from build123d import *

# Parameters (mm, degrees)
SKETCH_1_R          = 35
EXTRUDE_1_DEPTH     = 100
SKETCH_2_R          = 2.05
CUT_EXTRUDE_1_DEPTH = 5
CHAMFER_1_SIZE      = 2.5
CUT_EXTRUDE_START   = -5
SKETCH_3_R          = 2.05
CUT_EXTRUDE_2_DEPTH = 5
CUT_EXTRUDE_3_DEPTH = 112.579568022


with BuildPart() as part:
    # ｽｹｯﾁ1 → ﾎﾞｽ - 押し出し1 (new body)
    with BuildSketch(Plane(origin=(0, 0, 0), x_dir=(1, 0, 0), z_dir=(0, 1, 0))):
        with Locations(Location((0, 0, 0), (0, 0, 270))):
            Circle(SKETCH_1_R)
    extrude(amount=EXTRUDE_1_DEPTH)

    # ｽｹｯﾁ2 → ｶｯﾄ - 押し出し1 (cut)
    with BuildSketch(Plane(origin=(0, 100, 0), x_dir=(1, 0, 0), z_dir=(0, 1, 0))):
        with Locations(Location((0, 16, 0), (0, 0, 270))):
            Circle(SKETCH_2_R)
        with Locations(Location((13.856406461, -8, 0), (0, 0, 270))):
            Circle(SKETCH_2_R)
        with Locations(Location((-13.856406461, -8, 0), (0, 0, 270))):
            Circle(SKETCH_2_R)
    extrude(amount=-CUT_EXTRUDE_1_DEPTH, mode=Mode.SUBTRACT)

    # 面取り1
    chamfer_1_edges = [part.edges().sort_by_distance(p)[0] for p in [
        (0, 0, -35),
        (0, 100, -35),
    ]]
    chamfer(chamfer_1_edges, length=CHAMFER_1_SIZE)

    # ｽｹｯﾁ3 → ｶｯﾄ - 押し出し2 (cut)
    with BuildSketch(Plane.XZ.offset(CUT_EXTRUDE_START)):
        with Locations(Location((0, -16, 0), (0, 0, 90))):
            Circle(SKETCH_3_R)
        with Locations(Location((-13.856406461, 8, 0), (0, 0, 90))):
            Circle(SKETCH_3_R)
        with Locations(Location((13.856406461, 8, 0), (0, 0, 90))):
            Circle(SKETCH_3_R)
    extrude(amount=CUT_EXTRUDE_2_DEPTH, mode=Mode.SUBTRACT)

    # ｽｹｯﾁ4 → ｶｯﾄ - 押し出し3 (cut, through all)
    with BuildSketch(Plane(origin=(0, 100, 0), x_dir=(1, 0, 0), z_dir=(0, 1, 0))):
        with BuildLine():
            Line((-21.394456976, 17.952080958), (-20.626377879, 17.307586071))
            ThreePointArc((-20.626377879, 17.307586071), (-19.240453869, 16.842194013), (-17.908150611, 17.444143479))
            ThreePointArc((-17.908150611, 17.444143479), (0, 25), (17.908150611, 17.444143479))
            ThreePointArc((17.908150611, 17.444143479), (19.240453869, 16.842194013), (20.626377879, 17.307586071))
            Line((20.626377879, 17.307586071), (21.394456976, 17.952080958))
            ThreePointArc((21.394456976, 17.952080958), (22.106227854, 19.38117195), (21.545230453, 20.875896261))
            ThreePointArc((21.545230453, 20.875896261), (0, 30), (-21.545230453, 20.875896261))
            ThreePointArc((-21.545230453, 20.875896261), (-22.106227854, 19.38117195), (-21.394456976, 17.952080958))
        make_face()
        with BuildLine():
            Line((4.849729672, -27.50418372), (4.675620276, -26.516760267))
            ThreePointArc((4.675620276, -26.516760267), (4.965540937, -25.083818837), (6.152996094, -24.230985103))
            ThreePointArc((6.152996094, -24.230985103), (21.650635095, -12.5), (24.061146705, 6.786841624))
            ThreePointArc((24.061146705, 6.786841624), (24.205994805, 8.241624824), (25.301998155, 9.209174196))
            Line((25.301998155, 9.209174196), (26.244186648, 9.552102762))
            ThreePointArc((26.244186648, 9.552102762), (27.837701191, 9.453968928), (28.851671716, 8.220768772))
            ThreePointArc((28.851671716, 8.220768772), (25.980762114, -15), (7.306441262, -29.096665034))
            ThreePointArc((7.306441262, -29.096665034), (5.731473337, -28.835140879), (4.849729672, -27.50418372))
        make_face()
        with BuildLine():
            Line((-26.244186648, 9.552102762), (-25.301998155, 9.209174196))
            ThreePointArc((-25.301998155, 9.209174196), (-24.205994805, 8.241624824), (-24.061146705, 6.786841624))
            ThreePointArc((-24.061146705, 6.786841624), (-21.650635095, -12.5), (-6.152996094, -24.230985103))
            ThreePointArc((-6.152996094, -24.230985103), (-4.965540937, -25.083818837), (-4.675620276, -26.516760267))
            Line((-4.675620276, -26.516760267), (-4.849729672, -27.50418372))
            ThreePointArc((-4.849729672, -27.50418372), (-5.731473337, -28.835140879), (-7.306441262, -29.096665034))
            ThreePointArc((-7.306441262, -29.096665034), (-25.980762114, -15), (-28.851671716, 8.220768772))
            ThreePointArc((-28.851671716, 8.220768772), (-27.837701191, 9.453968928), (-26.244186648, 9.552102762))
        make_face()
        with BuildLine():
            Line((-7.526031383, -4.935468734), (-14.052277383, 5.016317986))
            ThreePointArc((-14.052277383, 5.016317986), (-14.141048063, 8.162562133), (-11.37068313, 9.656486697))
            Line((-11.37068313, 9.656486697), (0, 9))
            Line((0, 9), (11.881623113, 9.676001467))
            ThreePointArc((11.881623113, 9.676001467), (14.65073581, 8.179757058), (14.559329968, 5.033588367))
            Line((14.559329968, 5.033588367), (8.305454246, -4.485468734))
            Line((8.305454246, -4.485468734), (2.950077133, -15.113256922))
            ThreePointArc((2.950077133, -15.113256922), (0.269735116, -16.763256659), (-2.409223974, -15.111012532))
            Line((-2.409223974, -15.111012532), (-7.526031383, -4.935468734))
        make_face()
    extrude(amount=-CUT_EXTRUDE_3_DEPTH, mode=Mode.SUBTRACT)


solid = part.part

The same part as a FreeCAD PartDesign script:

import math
import FreeCAD as App
import Part
import Sketcher

V = App.Vector
Q = App.Units.Quantity


def edges_at(feature, points):
    """Names of the edges that pass closest to the given points."""
    edges = feature.Shape.Edges
    near = lambda p: min(range(len(edges)), key=lambda i: edges[i].distToShape(Part.Vertex(*p))[0])
    return sorted({f"Edge{near(p) + 1}" for p in points})

doc = App.newDocument("Part")
body = doc.addObject("PartDesign::Body", "Body")

# Sketch on XZ plane
sketch1 = body.newObject("Sketcher::SketchObject", "Sketch")
sketch1.AttachmentSupport = (doc.getObject("XZ_Plane"), [""])
sketch1.MapMode = "FlatFace"
sketch1.addGeometry(Part.Circle(V(0, 0, 0), V(0, 0, 1), 35), False)
sketch1.addConstraint(Sketcher.Constraint("Coincident", 0, 3, -1, 1))
sketch1.addConstraint(Sketcher.Constraint("Diameter", 0, 70.0))
pad1 = body.newObject("PartDesign::Pad", "Pad")
pad1.Profile = sketch1
pad1.Length = 100
pad1.Reversed = True

# Sketch on XZ plane
sketch2 = body.newObject("Sketcher::SketchObject", "Sketch001")
sketch2.AttachmentSupport = (doc.getObject("XZ_Plane"), [""])
sketch2.MapMode = "FlatFace"
sketch2.AttachmentOffset = App.Placement(V(0, 0, -100), App.Rotation())
sketch2.addGeometry(Part.Circle(V(0, -16, 0), V(0, 0, 1), 2), False)
sketch2.addGeometry(Part.Circle(V(13.9, 8, 0), V(0, 0, 1), 2), False)
sketch2.addGeometry(Part.Circle(V(-13.9, 8, 0), V(0, 0, 1), 2), False)
sketch2.addConstraint(Sketcher.Constraint("Equal", 0, 1))
sketch2.addConstraint(Sketcher.Constraint("Equal", 1, 2))
sketch2.addConstraint(Sketcher.Constraint("Symmetric", 1, 3, 2, 3, -2))
sketch2.addConstraint(Sketcher.Constraint("PointOnObject", 0, 3, -2))
sketch2.addConstraint(Sketcher.Constraint("Diameter", 0, 4.1))
sketch2.addConstraint(Sketcher.Constraint("DistanceY", 0, 3, -1, 1, 16.0))
sketch2.addConstraint(Sketcher.Constraint("DistanceY", -1, 1, 1, 3, 8.0))
sketch2.addConstraint(Sketcher.Constraint("DistanceX", -1, 1, 1, 3, 13.856406))
pocket1 = body.newObject("PartDesign::Pocket", "Pocket")
pocket1.Profile = sketch2
pocket1.Length = 5
pocket1.Reversed = True
doc.recompute()

chamfer = body.newObject("PartDesign::Chamfer", "Chamfer")
chamfer.Base = (pocket1, edges_at(pocket1, [(0, 0, -35), (0, 100, -35)]))
chamfer.Size = 2.5

# Sketch on XZ plane
sketch3 = body.newObject("Sketcher::SketchObject", "Sketch002")
sketch3.AttachmentSupport = (doc.getObject("XZ_Plane"), [""])
sketch3.MapMode = "FlatFace"
sketch3.AttachmentOffset = App.Placement(V(0, 0, -5), App.Rotation())
sketch3.addGeometry(Part.Circle(V(0, -16, 0), V(0, 0, 1), 2), False)
sketch3.addGeometry(Part.Circle(V(-13.9, 8, 0), V(0, 0, 1), 2), False)
sketch3.addGeometry(Part.Circle(V(13.9, 8, 0), V(0, 0, 1), 2), False)
sketch3.addConstraint(Sketcher.Constraint("Equal", 0, 1))
sketch3.addConstraint(Sketcher.Constraint("Equal", 1, 2))
sketch3.addConstraint(Sketcher.Constraint("Symmetric", 1, 3, 2, 3, -2))
sketch3.addConstraint(Sketcher.Constraint("PointOnObject", 0, 3, -2))
sketch3.addConstraint(Sketcher.Constraint("Diameter", 0, 4.1))
sketch3.addConstraint(Sketcher.Constraint("DistanceY", 0, 3, -1, 1, 16.0))
sketch3.addConstraint(Sketcher.Constraint("DistanceY", -1, 1, 1, 3, 8.0))
sketch3.addConstraint(Sketcher.Constraint("DistanceX", 1, 3, -1, 1, 13.856406))
pocket2 = body.newObject("PartDesign::Pocket", "Pocket001")
pocket2.Profile = sketch3
pocket2.Length = 5
pocket2.Reversed = True

# Sketch on XZ plane
sketch4 = body.newObject("Sketcher::SketchObject", "Sketch003")
sketch4.AttachmentSupport = (doc.getObject("XZ_Plane"), [""])
sketch4.MapMode = "FlatFace"
sketch4.AttachmentOffset = App.Placement(V(0, 0, -100), App.Rotation())
sketch4.addGeometry(Part.LineSegment(V(-21.4, -18, 0), V(-20.6, -17.3, 0)), False)
sketch4.addGeometry(Part.ArcOfCircle(Part.Circle(V(-19.3, -18.8, 0), V(0, 0, 1), 2), math.radians(44), math.radians(130)), False)
sketch4.addGeometry(Part.ArcOfCircle(Part.Circle(V(0, 0, 0), V(0, 0, 1), 25), math.radians(-136), math.radians(-44)), False)
sketch4.addGeometry(Part.ArcOfCircle(Part.Circle(V(19.3, -18.8, 0), V(0, 0, 1), 2), math.radians(50), math.radians(136)), False)
sketch4.addGeometry(Part.LineSegment(V(20.6, -17.3, 0), V(21.4, -18, 0)), False)
sketch4.addGeometry(Part.ArcOfCircle(Part.Circle(V(20.1, -19.5, 0), V(0, 0, 1), 2), math.radians(-44), math.radians(50)), False)
sketch4.addGeometry(Part.ArcOfCircle(Part.Circle(V(0, 0, 0), V(0, 0, 1), 30), math.radians(-136), math.radians(-44)), False)
sketch4.addGeometry(Part.ArcOfCircle(Part.Circle(V(-20.1, -19.5, 0), V(0, 0, 1), 2), math.radians(130), math.radians(224)), False)
sketch4.addGeometry(Part.LineSegment(V(4.7, 26.5, 0), V(4.8, 27.5, 0)), False)
sketch4.addGeometry(Part.ArcOfCircle(Part.Circle(V(6.8, 27.2, 0), V(0, 0, 1), 2), math.radians(76), math.radians(170)), False)
sketch4.addGeometry(Part.ArcOfCircle(Part.Circle(V(0, 0, 0), V(0, 0, 1), 30), math.radians(-16), math.radians(76)), False)
sketch4.addGeometry(Part.ArcOfCircle(Part.Circle(V(26.9, -7.7, 0), V(0, 0, 1), 2), math.radians(-110), math.radians(-16)), False)
sketch4.addGeometry(Part.LineSegment(V(26.2, -9.6, 0), V(25.3, -9.2, 0)), False)
sketch4.addGeometry(Part.ArcOfCircle(Part.Circle(V(26, -7.3, 0), V(0, 0, 1), 2), math.radians(164), math.radians(250)), False)
sketch4.addGeometry(Part.ArcOfCircle(Part.Circle(V(0, 0, 0), V(0, 0, 1), 25), math.radians(-16), math.radians(76)), False)
sketch4.addGeometry(Part.ArcOfCircle(Part.Circle(V(6.6, 26.2, 0), V(0, 0, 1), 2), math.radians(170), math.radians(256)), False)
sketch4.addGeometry(Part.LineSegment(V(-25.3, -9.2, 0), V(-26.2, -9.6, 0)), False)
sketch4.addGeometry(Part.ArcOfCircle(Part.Circle(V(-26.9, -7.7, 0), V(0, 0, 1), 2), math.radians(-164), math.radians(-70)), False)
sketch4.addGeometry(Part.ArcOfCircle(Part.Circle(V(0, 0, 0), V(0, 0, 1), 30), math.radians(104), math.radians(196)), False)
sketch4.addGeometry(Part.ArcOfCircle(Part.Circle(V(-6.8, 27.2, 0), V(0, 0, 1), 2), math.radians(10), math.radians(104)), False)
sketch4.addGeometry(Part.LineSegment(V(-4.8, 27.5, 0), V(-4.7, 26.5, 0)), False)
sketch4.addGeometry(Part.ArcOfCircle(Part.Circle(V(-6.6, 26.2, 0), V(0, 0, 1), 2), math.radians(-76), math.radians(10)), False)
sketch4.addGeometry(Part.ArcOfCircle(Part.Circle(V(0, 0, 0), V(0, 0, 1), 25), math.radians(104), math.radians(196)), False)
sketch4.addGeometry(Part.ArcOfCircle(Part.Circle(V(-26, -7.3, 0), V(0, 0, 1), 2), math.radians(-70), math.radians(16)), False)
sketch4.addGeometry(Part.LineSegment(V(-14.1, -5, 0), V(-7.5, 4.9, 0)), False)
sketch4.addGeometry(Part.LineSegment(V(-7.5, 4.9, 0), V(-2.4, 15.1, 0)), False)
sketch4.addGeometry(Part.ArcOfCircle(Part.Circle(V(0.3, 13.8, 0), V(0, 0, 1), 3), math.radians(27), math.radians(153)), False)
sketch4.addGeometry(Part.LineSegment(V(3, 15.1, 0), V(8.3, 4.5, 0)), False)
sketch4.addGeometry(Part.LineSegment(V(8.3, 4.5, 0), V(14.6, -5, 0)), False)
sketch4.addGeometry(Part.ArcOfCircle(Part.Circle(V(12.1, -6.7, 0), V(0, 0, 1), 3), math.radians(-93), math.radians(33)), False)
sketch4.addGeometry(Part.LineSegment(V(11.9, -9.7, 0), V(0, -9, 0)), False)
sketch4.addGeometry(Part.LineSegment(V(0, -9, 0), V(-11.4, -9.7, 0)), False)
sketch4.addGeometry(Part.ArcOfCircle(Part.Circle(V(-11.5, -6.7, 0), V(0, 0, 1), 3), math.radians(147), math.radians(273)), False)
sketch4.addConstraint(Sketcher.Constraint("Tangent", 0, 2, 1, 2))
sketch4.addConstraint(Sketcher.Constraint("Tangent", 1, 1, 2, 1))
sketch4.addConstraint(Sketcher.Constraint("Tangent", 2, 2, 3, 2))
sketch4.addConstraint(Sketcher.Constraint("Tangent", 3, 1, 4, 1))
sketch4.addConstraint(Sketcher.Constraint("Tangent", 4, 2, 5, 2))
sketch4.addConstraint(Sketcher.Constraint("Tangent", 5, 1, 6, 2))
sketch4.addConstraint(Sketcher.Constraint("Tangent", 6, 1, 7, 2))
sketch4.addConstraint(Sketcher.Constraint("Tangent", 7, 1, 0, 1))
sketch4.addConstraint(Sketcher.Constraint("Tangent", 8, 2, 9, 2))
sketch4.addConstraint(Sketcher.Constraint("Tangent", 9, 1, 10, 2))
sketch4.addConstraint(Sketcher.Constraint("Tangent", 10, 1, 11, 2))
sketch4.addConstraint(Sketcher.Constraint("Tangent", 11, 1, 12, 1))
sketch4.addConstraint(Sketcher.Constraint("Tangent", 12, 2, 13, 2))
sketch4.addConstraint(Sketcher.Constraint("Tangent", 13, 1, 14, 1))
sketch4.addConstraint(Sketcher.Constraint("Tangent", 14, 2, 15, 2))
sketch4.addConstraint(Sketcher.Constraint("Tangent", 15, 1, 8, 1))
sketch4.addConstraint(Sketcher.Constraint("Tangent", 16, 2, 17, 2))
sketch4.addConstraint(Sketcher.Constraint("Tangent", 17, 1, 18, 2))
sketch4.addConstraint(Sketcher.Constraint("Tangent", 18, 1, 19, 2))
sketch4.addConstraint(Sketcher.Constraint("Tangent", 19, 1, 20, 1))
sketch4.addConstraint(Sketcher.Constraint("Tangent", 20, 2, 21, 2))
sketch4.addConstraint(Sketcher.Constraint("Tangent", 21, 1, 22, 1))
sketch4.addConstraint(Sketcher.Constraint("Tangent", 22, 2, 23, 2))
sketch4.addConstraint(Sketcher.Constraint("Tangent", 23, 1, 16, 1))
sketch4.addConstraint(Sketcher.Constraint("Coincident", 24, 2, 25, 1))
sketch4.addConstraint(Sketcher.Constraint("Tangent", 25, 2, 26, 2))
sketch4.addConstraint(Sketcher.Constraint("Tangent", 26, 1, 27, 1))
sketch4.addConstraint(Sketcher.Constraint("Coincident", 27, 2, 28, 1))
sketch4.addConstraint(Sketcher.Constraint("Tangent", 28, 2, 29, 2))
sketch4.addConstraint(Sketcher.Constraint("Tangent", 29, 1, 30, 1))
sketch4.addConstraint(Sketcher.Constraint("Coincident", 30, 2, 31, 1))
sketch4.addConstraint(Sketcher.Constraint("Tangent", 31, 2, 32, 2))
sketch4.addConstraint(Sketcher.Constraint("Tangent", 32, 1, 24, 1))
sketch4.addConstraint(Sketcher.Constraint("Coincident", 2, 3, -1, 1))
sketch4.addConstraint(Sketcher.Constraint("Coincident", 6, 3, -1, 1))
sketch4.addConstraint(Sketcher.Constraint("Coincident", 10, 3, -1, 1))
sketch4.addConstraint(Sketcher.Constraint("Coincident", 14, 3, -1, 1))
sketch4.addConstraint(Sketcher.Constraint("Coincident", 18, 3, -1, 1))
sketch4.addConstraint(Sketcher.Constraint("Coincident", 22, 3, -1, 1))
sketch4.addConstraint(Sketcher.Constraint("Equal", 1, 3))
sketch4.addConstraint(Sketcher.Constraint("Equal", 3, 5))
sketch4.addConstraint(Sketcher.Constraint("Equal", 5, 7))
sketch4.addConstraint(Sketcher.Constraint("Equal", 7, 9))
sketch4.addConstraint(Sketcher.Constraint("Equal", 6, 10))
sketch4.addConstraint(Sketcher.Constraint("Equal", 9, 11))
sketch4.addConstraint(Sketcher.Constraint("Equal", 11, 13))
sketch4.addConstraint(Sketcher.Constraint("Equal", 2, 14))
sketch4.addConstraint(Sketcher.Constraint("Equal", 13, 15))
sketch4.addConstraint(Sketcher.Constraint("Equal", 15, 17))
sketch4.addConstraint(Sketcher.Constraint("Equal", 10, 18))
sketch4.addConstraint(Sketcher.Constraint("Equal", 17, 19))
sketch4.addConstraint(Sketcher.Constraint("Equal", 19, 21))
sketch4.addConstraint(Sketcher.Constraint("Equal", 14, 22))
sketch4.addConstraint(Sketcher.Constraint("Equal", 21, 23))
sketch4.addConstraint(Sketcher.Constraint("Equal", 26, 29))
sketch4.addConstraint(Sketcher.Constraint("Equal", 29, 32))
sketch4.addConstraint(Sketcher.Constraint("Symmetric", 0, 2, 3, 1, -2))
sketch4.addConstraint(Sketcher.Constraint("Symmetric", 11, 1, 16, 2, -2))
sketch4.addConstraint(Sketcher.Constraint("Symmetric", 8, 2, 19, 1, -2))
sketch4.addConstraint(Sketcher.Constraint("PointOnObject", 30, 2, -2))
sketch4.addConstraint(Sketcher.Constraint("Equal", 4, 8))
sketch4.addConstraint(Sketcher.Constraint("Equal", 8, 12))
sketch4.addConstraint(Sketcher.Constraint("Equal", 24, 27))
sketch4.addConstraint(Sketcher.Constraint("Equal", 25, 28))
sketch4.addConstraint(Sketcher.Constraint("Equal", 27, 30))
sketch4.addConstraint(Sketcher.Constraint("Equal", 28, 31))
sketch4.addConstraint(Sketcher.Constraint("Radius", 1, 2.0))
sketch4.addConstraint(Sketcher.Constraint("Radius", 2, 25.0))
sketch4.addConstraint(Sketcher.Constraint("Radius", 6, 30.0))
sketch4.addConstraint(Sketcher.Constraint("Radius", 26, 3.0))
sketch4.addConstraint(Sketcher.Constraint("Angle", 0, Q("40 deg")))
sketch4.addConstraint(Sketcher.Constraint("Angle", 8, Q("80 deg")))
sketch4.addConstraint(Sketcher.Constraint("Angle", 12, Q("160 deg")))
sketch4.addConstraint(Sketcher.Constraint("DistanceY", 30, 2, -1, 1, 9.0))
sketch4.addConstraint(Sketcher.Constraint("DistanceY", 26, 3, 26, 1, 1.35))
sketch4.addConstraint(Sketcher.Constraint("DistanceX", -1, 1, 12, 2, 25.301998))
sketch4.addConstraint(Sketcher.Constraint("DistanceY", 29, 1, -1, 1, 9.676001))
sketch4.addConstraint(Sketcher.Constraint("DistanceX", 32, 3, -1, 1, 11.5436))
sketch4.addConstraint(Sketcher.Constraint("DistanceX", 25, 2, 26, 1, 5.359301))
sketch4.addConstraint(Sketcher.Constraint("DistanceX", 29, 3, 28, 2, 2.507298))
sketch4.addConstraint(Sketcher.Constraint("DistanceY", 0, 2, 31, 2, 7.651099))
pocket3 = body.newObject("PartDesign::Pocket", "Pocket002")
pocket3.Profile = sketch4
pocket3.Type = "ThroughAll"
pocket3.Reversed = True

doc.recompute()
